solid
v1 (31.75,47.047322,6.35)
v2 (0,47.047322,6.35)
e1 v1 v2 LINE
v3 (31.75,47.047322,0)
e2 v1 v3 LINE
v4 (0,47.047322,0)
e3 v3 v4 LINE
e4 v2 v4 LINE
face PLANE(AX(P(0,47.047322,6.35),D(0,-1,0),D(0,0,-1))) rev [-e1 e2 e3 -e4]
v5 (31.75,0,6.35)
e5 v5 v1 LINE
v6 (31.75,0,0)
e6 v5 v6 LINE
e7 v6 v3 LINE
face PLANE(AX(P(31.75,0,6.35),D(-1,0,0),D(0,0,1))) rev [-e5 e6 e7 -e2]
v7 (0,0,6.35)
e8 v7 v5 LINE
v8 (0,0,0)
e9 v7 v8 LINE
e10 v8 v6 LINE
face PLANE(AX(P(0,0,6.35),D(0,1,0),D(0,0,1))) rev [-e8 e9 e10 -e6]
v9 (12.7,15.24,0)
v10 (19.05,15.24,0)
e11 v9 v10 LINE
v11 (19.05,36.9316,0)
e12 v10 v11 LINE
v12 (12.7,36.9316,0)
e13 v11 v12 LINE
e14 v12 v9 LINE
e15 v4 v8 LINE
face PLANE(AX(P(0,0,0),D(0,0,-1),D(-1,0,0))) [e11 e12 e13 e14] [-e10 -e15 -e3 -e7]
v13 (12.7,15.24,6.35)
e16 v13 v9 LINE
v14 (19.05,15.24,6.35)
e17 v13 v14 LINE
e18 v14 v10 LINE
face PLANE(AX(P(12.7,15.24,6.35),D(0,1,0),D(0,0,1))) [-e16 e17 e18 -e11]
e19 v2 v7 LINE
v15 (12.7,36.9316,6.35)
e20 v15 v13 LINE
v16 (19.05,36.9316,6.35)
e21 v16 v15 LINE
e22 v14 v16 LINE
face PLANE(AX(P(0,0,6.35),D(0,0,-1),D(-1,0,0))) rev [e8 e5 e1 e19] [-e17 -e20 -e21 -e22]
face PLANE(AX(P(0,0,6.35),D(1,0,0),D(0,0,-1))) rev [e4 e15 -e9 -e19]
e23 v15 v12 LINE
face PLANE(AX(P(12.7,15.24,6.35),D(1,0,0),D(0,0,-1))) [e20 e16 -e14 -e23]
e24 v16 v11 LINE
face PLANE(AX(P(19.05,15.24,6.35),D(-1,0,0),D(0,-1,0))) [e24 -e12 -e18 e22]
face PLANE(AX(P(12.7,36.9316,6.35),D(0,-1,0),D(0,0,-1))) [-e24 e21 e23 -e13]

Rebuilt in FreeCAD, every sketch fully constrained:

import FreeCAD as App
import Part
import Sketcher

V = App.Vector
Q = App.Units.Quantity


def add_polygon(sketch, points):
    """Adds a closed chain of lines whose ends are joined by coincident constraints."""
    first, n = sketch.GeometryCount, len(points)
    for a, b in zip(points, points[1:] + points[:1]):
        sketch.addGeometry(Part.LineSegment(App.Vector(*a, 0), App.Vector(*b, 0)), False)
    for i in range(n):
        sketch.addConstraint(Sketcher.Constraint("Coincident", first + i, 2, first + (i + 1) % n, 1))

doc = App.newDocument("Part")
body = doc.addObject("PartDesign::Body", "Body")

sketch1 = body.newObject("Sketcher::SketchObject", "Sketch")
sketch1.AttachmentSupport = (doc.getObject("XY_Plane"), [""])
sketch1.MapMode = "FlatFace"
add_polygon(sketch1, [(0, 47), (0, 0), (32, 0), (32, 47)])
add_polygon(sketch1, [(19, 15), (13, 15), (13, 37), (19, 37)])
sketch1.addConstraint(Sketcher.Constraint("Vertical", 0))
sketch1.addConstraint(Sketcher.Constraint("Horizontal", 1))
sketch1.addConstraint(Sketcher.Constraint("Vertical", 2))
sketch1.addConstraint(Sketcher.Constraint("Horizontal", 3))
sketch1.addConstraint(Sketcher.Constraint("Horizontal", 4))
sketch1.addConstraint(Sketcher.Constraint("Vertical", 5))
sketch1.addConstraint(Sketcher.Constraint("Horizontal", 6))
sketch1.addConstraint(Sketcher.Constraint("Vertical", 7))
sketch1.addConstraint(Sketcher.Constraint("Coincident", 0, 2, -1, 1))
sketch1.addConstraint(Sketcher.Constraint("DistanceX", 1, 1, 1, 2, Q("1.25 in")))
sketch1.addConstraint(Sketcher.Constraint("DistanceX", 4, 2, 4, 1, Q("0.25 in")))
sketch1.addConstraint(Sketcher.Constraint("DistanceX", -1, 1, 4, 2, Q("0.5 in")))
sketch1.addConstraint(Sketcher.Constraint("DistanceY", -1, 1, 4, 2, Q("0.6 in")))
sketch1.addConstraint(Sketcher.Constraint("DistanceY", 5, 1, 5, 2, Q("0.854 in")))
sketch1.addConstraint(Sketcher.Constraint("DistanceY", 0, 2, 0, 1, Q("47.047322 mm")))
pad1 = body.newObject("PartDesign::Pad", "Pad")
pad1.Profile = sketch1
pad1.Length = Q("0.25 in")

doc.recompute()
